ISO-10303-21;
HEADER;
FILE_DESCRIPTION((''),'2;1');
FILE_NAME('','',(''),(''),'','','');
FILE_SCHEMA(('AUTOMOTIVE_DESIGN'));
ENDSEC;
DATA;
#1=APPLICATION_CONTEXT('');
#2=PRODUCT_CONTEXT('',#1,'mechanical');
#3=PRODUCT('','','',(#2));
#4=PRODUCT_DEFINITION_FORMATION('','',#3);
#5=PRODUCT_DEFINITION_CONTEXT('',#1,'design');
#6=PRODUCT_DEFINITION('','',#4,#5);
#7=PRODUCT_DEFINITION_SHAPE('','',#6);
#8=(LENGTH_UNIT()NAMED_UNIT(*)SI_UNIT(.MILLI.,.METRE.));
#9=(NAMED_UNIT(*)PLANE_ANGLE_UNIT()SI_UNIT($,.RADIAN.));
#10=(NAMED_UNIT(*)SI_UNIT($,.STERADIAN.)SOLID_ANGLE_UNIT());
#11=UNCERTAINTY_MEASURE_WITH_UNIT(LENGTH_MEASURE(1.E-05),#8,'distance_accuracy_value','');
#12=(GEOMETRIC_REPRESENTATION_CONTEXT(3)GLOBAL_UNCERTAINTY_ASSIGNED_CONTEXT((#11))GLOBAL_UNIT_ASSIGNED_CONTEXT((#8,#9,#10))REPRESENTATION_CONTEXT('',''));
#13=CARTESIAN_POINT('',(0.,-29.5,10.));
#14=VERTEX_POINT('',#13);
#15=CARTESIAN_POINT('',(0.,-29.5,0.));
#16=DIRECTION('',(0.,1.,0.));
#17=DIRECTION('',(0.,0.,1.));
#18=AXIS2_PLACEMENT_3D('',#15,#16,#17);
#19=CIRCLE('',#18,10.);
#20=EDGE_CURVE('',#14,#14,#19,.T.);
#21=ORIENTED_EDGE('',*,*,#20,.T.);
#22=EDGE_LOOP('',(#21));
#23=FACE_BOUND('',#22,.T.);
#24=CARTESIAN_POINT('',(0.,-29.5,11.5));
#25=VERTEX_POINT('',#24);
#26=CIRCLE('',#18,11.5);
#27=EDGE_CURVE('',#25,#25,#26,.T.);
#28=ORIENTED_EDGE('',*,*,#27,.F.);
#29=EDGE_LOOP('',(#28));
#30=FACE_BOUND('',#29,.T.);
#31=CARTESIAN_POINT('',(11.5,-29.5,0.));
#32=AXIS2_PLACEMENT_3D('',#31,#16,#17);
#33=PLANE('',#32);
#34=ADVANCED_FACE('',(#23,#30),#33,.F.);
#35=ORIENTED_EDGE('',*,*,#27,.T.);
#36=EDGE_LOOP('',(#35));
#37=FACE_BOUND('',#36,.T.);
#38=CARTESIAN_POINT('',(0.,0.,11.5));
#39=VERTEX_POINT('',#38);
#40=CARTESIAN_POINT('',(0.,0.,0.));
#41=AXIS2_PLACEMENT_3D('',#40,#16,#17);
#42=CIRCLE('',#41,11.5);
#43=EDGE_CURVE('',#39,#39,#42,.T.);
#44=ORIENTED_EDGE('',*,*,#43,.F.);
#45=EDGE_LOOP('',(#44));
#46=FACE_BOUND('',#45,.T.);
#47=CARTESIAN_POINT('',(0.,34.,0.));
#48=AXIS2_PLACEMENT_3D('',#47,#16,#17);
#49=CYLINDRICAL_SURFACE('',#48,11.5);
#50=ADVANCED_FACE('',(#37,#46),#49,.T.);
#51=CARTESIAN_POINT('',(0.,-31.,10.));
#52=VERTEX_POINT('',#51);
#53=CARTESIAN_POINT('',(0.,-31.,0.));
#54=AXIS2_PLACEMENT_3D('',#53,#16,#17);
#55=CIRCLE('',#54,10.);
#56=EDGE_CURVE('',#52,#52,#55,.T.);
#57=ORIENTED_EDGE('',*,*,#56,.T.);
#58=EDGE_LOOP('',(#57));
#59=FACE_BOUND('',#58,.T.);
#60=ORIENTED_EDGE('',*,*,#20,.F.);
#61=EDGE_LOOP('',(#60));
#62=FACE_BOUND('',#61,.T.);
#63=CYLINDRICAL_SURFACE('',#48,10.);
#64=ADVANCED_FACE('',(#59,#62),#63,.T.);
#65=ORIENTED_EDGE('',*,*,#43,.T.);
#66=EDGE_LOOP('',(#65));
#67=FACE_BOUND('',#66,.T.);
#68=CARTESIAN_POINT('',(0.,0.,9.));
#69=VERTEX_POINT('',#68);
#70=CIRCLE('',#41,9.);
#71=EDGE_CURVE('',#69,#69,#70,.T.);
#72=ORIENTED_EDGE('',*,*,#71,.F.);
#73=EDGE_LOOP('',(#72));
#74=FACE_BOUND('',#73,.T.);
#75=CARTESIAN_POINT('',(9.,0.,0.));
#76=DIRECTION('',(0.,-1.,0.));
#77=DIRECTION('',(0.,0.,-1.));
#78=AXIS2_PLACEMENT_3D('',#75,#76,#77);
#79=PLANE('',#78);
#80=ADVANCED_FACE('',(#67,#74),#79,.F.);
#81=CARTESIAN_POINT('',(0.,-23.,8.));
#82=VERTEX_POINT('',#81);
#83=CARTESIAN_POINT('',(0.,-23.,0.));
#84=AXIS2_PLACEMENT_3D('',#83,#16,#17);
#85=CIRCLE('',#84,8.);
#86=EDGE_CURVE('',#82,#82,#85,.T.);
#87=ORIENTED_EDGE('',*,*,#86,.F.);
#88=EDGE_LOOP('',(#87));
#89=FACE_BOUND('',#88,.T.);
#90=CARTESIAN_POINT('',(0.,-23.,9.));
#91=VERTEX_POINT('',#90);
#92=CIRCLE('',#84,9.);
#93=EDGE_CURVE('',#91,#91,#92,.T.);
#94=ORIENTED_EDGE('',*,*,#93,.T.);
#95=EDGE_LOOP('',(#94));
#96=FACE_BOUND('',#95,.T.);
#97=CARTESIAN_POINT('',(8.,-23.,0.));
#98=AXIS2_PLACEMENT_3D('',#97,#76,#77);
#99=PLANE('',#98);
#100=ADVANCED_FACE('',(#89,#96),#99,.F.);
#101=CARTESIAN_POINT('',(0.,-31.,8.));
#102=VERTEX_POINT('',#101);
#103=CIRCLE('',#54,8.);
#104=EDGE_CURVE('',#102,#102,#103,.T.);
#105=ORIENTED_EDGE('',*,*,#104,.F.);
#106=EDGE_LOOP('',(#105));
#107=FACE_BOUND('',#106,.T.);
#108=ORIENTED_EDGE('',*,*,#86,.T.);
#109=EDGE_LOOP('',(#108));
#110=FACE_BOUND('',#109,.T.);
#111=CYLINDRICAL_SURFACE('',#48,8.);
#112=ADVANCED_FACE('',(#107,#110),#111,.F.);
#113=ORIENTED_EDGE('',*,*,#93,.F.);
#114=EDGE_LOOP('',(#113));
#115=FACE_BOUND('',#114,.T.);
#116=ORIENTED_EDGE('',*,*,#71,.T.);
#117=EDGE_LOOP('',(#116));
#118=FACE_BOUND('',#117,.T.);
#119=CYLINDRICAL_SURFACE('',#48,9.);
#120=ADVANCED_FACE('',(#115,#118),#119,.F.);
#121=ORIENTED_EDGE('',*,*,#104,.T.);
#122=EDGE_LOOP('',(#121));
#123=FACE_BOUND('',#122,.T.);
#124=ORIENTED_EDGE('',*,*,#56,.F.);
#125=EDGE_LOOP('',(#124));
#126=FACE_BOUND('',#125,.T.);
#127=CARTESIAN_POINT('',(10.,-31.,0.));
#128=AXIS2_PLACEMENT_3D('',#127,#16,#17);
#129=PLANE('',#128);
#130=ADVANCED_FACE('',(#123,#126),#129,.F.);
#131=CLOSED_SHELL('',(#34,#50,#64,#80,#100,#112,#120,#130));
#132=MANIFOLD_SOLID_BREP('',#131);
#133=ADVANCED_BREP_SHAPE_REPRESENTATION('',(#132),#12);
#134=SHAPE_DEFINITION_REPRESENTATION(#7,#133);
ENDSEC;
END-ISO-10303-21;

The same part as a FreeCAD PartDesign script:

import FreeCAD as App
import Part
import Sketcher
Q = App.Units.Quantity

doc = App.newDocument("Part")
body = doc.addObject("PartDesign::Body", "Body")

# Sketch on XY plane
sketch1 = body.newObject("Sketcher::SketchObject", "Sketch")
sketch1.AttachmentSupport = (doc.getObject("XY_Plane"), [""])
sketch1.MapMode = "FlatFace"
sketch1.addGeometry(Part.LineSegment(App.Vector(9, 0, 0), App.Vector(9, -23, 0)), False)
sketch1.addGeometry(Part.LineSegment(App.Vector(9, -23, 0), App.Vector(8, -23, 0)), False)
sketch1.addGeometry(Part.LineSegment(App.Vector(8, -23, 0), App.Vector(8, -31, 0)), False)
sketch1.addGeometry(Part.LineSegment(App.Vector(8, -31, 0), App.Vector(10, -31, 0)), False)
sketch1.addGeometry(Part.LineSegment(App.Vector(10, -31, 0), App.Vector(10, -29.5, 0)), False)
sketch1.addGeometry(Part.LineSegment(App.Vector(10, -29.5, 0), App.Vector(11.5, -29.5, 0)), False)
sketch1.addGeometry(Part.LineSegment(App.Vector(11.5, -29.5, 0), App.Vector(11.5, 0, 0)), False)
sketch1.addGeometry(Part.LineSegment(App.Vector(11.5, 0, 0), App.Vector(9, 0, 0)), False)
sketch1.addConstraint(Sketcher.Constraint("Coincident", 0, 2, 1, 1))
sketch1.addConstraint(Sketcher.Constraint("Coincident", 1, 2, 2, 1))
sketch1.addConstraint(Sketcher.Constraint("Coincident", 2, 2, 3, 1))
sketch1.addConstraint(Sketcher.Constraint("Coincident", 3, 2, 4, 1))
sketch1.addConstraint(Sketcher.Constraint("Coincident", 4, 2, 5, 1))
sketch1.addConstraint(Sketcher.Constraint("Coincident", 5, 2, 6, 1))
sketch1.addConstraint(Sketcher.Constraint("Coincident", 6, 2, 7, 1))
sketch1.addConstraint(Sketcher.Constraint("Coincident", 7, 2, 0, 1))
sketch1.addConstraint(Sketcher.Constraint("Vertical", 0))
sketch1.addConstraint(Sketcher.Constraint("Horizontal", 1))
sketch1.addConstraint(Sketcher.Constraint("Vertical", 2))
sketch1.addConstraint(Sketcher.Constraint("Horizontal", 3))
sketch1.addConstraint(Sketcher.Constraint("Vertical", 4))
sketch1.addConstraint(Sketcher.Constraint("Horizontal", 5))
sketch1.addConstraint(Sketcher.Constraint("Vertical", 6))
sketch1.addConstraint(Sketcher.Constraint("Horizontal", 7))
sketch1.addConstraint(Sketcher.Constraint("PointOnObject", 6, 2, -1))
sketch1.addConstraint(Sketcher.Constraint("Equal", 5, 4))
sketch1.addConstraint(Sketcher.Constraint("DistanceX", 1, 2, 1, 1, Q("1 mm")))
sketch1.addConstraint(Sketcher.Constraint("DistanceX", 3, 1, 3, 2, Q("2 mm")))
sketch1.addConstraint(Sketcher.Constraint("DistanceY", 0, 2, 0, 1, Q("23 mm")))
sketch1.addConstraint(Sketcher.Constraint("DistanceY", 2, 2, 2, 1, Q("8 mm")))
sketch1.addConstraint(Sketcher.Constraint("DistanceX", 5, 1, 5, 2, Q("1.5 mm")))
sketch1.addConstraint(Sketcher.Constraint("DistanceX", -1, 1, 0, 2, Q("9 mm")))
revolution = body.newObject("PartDesign::Revolution", "Revolution")
revolution.Profile = sketch1
revolution.ReferenceAxis = (sketch1, ["V_Axis"])
revolution.Angle = 360

doc.recompute()
